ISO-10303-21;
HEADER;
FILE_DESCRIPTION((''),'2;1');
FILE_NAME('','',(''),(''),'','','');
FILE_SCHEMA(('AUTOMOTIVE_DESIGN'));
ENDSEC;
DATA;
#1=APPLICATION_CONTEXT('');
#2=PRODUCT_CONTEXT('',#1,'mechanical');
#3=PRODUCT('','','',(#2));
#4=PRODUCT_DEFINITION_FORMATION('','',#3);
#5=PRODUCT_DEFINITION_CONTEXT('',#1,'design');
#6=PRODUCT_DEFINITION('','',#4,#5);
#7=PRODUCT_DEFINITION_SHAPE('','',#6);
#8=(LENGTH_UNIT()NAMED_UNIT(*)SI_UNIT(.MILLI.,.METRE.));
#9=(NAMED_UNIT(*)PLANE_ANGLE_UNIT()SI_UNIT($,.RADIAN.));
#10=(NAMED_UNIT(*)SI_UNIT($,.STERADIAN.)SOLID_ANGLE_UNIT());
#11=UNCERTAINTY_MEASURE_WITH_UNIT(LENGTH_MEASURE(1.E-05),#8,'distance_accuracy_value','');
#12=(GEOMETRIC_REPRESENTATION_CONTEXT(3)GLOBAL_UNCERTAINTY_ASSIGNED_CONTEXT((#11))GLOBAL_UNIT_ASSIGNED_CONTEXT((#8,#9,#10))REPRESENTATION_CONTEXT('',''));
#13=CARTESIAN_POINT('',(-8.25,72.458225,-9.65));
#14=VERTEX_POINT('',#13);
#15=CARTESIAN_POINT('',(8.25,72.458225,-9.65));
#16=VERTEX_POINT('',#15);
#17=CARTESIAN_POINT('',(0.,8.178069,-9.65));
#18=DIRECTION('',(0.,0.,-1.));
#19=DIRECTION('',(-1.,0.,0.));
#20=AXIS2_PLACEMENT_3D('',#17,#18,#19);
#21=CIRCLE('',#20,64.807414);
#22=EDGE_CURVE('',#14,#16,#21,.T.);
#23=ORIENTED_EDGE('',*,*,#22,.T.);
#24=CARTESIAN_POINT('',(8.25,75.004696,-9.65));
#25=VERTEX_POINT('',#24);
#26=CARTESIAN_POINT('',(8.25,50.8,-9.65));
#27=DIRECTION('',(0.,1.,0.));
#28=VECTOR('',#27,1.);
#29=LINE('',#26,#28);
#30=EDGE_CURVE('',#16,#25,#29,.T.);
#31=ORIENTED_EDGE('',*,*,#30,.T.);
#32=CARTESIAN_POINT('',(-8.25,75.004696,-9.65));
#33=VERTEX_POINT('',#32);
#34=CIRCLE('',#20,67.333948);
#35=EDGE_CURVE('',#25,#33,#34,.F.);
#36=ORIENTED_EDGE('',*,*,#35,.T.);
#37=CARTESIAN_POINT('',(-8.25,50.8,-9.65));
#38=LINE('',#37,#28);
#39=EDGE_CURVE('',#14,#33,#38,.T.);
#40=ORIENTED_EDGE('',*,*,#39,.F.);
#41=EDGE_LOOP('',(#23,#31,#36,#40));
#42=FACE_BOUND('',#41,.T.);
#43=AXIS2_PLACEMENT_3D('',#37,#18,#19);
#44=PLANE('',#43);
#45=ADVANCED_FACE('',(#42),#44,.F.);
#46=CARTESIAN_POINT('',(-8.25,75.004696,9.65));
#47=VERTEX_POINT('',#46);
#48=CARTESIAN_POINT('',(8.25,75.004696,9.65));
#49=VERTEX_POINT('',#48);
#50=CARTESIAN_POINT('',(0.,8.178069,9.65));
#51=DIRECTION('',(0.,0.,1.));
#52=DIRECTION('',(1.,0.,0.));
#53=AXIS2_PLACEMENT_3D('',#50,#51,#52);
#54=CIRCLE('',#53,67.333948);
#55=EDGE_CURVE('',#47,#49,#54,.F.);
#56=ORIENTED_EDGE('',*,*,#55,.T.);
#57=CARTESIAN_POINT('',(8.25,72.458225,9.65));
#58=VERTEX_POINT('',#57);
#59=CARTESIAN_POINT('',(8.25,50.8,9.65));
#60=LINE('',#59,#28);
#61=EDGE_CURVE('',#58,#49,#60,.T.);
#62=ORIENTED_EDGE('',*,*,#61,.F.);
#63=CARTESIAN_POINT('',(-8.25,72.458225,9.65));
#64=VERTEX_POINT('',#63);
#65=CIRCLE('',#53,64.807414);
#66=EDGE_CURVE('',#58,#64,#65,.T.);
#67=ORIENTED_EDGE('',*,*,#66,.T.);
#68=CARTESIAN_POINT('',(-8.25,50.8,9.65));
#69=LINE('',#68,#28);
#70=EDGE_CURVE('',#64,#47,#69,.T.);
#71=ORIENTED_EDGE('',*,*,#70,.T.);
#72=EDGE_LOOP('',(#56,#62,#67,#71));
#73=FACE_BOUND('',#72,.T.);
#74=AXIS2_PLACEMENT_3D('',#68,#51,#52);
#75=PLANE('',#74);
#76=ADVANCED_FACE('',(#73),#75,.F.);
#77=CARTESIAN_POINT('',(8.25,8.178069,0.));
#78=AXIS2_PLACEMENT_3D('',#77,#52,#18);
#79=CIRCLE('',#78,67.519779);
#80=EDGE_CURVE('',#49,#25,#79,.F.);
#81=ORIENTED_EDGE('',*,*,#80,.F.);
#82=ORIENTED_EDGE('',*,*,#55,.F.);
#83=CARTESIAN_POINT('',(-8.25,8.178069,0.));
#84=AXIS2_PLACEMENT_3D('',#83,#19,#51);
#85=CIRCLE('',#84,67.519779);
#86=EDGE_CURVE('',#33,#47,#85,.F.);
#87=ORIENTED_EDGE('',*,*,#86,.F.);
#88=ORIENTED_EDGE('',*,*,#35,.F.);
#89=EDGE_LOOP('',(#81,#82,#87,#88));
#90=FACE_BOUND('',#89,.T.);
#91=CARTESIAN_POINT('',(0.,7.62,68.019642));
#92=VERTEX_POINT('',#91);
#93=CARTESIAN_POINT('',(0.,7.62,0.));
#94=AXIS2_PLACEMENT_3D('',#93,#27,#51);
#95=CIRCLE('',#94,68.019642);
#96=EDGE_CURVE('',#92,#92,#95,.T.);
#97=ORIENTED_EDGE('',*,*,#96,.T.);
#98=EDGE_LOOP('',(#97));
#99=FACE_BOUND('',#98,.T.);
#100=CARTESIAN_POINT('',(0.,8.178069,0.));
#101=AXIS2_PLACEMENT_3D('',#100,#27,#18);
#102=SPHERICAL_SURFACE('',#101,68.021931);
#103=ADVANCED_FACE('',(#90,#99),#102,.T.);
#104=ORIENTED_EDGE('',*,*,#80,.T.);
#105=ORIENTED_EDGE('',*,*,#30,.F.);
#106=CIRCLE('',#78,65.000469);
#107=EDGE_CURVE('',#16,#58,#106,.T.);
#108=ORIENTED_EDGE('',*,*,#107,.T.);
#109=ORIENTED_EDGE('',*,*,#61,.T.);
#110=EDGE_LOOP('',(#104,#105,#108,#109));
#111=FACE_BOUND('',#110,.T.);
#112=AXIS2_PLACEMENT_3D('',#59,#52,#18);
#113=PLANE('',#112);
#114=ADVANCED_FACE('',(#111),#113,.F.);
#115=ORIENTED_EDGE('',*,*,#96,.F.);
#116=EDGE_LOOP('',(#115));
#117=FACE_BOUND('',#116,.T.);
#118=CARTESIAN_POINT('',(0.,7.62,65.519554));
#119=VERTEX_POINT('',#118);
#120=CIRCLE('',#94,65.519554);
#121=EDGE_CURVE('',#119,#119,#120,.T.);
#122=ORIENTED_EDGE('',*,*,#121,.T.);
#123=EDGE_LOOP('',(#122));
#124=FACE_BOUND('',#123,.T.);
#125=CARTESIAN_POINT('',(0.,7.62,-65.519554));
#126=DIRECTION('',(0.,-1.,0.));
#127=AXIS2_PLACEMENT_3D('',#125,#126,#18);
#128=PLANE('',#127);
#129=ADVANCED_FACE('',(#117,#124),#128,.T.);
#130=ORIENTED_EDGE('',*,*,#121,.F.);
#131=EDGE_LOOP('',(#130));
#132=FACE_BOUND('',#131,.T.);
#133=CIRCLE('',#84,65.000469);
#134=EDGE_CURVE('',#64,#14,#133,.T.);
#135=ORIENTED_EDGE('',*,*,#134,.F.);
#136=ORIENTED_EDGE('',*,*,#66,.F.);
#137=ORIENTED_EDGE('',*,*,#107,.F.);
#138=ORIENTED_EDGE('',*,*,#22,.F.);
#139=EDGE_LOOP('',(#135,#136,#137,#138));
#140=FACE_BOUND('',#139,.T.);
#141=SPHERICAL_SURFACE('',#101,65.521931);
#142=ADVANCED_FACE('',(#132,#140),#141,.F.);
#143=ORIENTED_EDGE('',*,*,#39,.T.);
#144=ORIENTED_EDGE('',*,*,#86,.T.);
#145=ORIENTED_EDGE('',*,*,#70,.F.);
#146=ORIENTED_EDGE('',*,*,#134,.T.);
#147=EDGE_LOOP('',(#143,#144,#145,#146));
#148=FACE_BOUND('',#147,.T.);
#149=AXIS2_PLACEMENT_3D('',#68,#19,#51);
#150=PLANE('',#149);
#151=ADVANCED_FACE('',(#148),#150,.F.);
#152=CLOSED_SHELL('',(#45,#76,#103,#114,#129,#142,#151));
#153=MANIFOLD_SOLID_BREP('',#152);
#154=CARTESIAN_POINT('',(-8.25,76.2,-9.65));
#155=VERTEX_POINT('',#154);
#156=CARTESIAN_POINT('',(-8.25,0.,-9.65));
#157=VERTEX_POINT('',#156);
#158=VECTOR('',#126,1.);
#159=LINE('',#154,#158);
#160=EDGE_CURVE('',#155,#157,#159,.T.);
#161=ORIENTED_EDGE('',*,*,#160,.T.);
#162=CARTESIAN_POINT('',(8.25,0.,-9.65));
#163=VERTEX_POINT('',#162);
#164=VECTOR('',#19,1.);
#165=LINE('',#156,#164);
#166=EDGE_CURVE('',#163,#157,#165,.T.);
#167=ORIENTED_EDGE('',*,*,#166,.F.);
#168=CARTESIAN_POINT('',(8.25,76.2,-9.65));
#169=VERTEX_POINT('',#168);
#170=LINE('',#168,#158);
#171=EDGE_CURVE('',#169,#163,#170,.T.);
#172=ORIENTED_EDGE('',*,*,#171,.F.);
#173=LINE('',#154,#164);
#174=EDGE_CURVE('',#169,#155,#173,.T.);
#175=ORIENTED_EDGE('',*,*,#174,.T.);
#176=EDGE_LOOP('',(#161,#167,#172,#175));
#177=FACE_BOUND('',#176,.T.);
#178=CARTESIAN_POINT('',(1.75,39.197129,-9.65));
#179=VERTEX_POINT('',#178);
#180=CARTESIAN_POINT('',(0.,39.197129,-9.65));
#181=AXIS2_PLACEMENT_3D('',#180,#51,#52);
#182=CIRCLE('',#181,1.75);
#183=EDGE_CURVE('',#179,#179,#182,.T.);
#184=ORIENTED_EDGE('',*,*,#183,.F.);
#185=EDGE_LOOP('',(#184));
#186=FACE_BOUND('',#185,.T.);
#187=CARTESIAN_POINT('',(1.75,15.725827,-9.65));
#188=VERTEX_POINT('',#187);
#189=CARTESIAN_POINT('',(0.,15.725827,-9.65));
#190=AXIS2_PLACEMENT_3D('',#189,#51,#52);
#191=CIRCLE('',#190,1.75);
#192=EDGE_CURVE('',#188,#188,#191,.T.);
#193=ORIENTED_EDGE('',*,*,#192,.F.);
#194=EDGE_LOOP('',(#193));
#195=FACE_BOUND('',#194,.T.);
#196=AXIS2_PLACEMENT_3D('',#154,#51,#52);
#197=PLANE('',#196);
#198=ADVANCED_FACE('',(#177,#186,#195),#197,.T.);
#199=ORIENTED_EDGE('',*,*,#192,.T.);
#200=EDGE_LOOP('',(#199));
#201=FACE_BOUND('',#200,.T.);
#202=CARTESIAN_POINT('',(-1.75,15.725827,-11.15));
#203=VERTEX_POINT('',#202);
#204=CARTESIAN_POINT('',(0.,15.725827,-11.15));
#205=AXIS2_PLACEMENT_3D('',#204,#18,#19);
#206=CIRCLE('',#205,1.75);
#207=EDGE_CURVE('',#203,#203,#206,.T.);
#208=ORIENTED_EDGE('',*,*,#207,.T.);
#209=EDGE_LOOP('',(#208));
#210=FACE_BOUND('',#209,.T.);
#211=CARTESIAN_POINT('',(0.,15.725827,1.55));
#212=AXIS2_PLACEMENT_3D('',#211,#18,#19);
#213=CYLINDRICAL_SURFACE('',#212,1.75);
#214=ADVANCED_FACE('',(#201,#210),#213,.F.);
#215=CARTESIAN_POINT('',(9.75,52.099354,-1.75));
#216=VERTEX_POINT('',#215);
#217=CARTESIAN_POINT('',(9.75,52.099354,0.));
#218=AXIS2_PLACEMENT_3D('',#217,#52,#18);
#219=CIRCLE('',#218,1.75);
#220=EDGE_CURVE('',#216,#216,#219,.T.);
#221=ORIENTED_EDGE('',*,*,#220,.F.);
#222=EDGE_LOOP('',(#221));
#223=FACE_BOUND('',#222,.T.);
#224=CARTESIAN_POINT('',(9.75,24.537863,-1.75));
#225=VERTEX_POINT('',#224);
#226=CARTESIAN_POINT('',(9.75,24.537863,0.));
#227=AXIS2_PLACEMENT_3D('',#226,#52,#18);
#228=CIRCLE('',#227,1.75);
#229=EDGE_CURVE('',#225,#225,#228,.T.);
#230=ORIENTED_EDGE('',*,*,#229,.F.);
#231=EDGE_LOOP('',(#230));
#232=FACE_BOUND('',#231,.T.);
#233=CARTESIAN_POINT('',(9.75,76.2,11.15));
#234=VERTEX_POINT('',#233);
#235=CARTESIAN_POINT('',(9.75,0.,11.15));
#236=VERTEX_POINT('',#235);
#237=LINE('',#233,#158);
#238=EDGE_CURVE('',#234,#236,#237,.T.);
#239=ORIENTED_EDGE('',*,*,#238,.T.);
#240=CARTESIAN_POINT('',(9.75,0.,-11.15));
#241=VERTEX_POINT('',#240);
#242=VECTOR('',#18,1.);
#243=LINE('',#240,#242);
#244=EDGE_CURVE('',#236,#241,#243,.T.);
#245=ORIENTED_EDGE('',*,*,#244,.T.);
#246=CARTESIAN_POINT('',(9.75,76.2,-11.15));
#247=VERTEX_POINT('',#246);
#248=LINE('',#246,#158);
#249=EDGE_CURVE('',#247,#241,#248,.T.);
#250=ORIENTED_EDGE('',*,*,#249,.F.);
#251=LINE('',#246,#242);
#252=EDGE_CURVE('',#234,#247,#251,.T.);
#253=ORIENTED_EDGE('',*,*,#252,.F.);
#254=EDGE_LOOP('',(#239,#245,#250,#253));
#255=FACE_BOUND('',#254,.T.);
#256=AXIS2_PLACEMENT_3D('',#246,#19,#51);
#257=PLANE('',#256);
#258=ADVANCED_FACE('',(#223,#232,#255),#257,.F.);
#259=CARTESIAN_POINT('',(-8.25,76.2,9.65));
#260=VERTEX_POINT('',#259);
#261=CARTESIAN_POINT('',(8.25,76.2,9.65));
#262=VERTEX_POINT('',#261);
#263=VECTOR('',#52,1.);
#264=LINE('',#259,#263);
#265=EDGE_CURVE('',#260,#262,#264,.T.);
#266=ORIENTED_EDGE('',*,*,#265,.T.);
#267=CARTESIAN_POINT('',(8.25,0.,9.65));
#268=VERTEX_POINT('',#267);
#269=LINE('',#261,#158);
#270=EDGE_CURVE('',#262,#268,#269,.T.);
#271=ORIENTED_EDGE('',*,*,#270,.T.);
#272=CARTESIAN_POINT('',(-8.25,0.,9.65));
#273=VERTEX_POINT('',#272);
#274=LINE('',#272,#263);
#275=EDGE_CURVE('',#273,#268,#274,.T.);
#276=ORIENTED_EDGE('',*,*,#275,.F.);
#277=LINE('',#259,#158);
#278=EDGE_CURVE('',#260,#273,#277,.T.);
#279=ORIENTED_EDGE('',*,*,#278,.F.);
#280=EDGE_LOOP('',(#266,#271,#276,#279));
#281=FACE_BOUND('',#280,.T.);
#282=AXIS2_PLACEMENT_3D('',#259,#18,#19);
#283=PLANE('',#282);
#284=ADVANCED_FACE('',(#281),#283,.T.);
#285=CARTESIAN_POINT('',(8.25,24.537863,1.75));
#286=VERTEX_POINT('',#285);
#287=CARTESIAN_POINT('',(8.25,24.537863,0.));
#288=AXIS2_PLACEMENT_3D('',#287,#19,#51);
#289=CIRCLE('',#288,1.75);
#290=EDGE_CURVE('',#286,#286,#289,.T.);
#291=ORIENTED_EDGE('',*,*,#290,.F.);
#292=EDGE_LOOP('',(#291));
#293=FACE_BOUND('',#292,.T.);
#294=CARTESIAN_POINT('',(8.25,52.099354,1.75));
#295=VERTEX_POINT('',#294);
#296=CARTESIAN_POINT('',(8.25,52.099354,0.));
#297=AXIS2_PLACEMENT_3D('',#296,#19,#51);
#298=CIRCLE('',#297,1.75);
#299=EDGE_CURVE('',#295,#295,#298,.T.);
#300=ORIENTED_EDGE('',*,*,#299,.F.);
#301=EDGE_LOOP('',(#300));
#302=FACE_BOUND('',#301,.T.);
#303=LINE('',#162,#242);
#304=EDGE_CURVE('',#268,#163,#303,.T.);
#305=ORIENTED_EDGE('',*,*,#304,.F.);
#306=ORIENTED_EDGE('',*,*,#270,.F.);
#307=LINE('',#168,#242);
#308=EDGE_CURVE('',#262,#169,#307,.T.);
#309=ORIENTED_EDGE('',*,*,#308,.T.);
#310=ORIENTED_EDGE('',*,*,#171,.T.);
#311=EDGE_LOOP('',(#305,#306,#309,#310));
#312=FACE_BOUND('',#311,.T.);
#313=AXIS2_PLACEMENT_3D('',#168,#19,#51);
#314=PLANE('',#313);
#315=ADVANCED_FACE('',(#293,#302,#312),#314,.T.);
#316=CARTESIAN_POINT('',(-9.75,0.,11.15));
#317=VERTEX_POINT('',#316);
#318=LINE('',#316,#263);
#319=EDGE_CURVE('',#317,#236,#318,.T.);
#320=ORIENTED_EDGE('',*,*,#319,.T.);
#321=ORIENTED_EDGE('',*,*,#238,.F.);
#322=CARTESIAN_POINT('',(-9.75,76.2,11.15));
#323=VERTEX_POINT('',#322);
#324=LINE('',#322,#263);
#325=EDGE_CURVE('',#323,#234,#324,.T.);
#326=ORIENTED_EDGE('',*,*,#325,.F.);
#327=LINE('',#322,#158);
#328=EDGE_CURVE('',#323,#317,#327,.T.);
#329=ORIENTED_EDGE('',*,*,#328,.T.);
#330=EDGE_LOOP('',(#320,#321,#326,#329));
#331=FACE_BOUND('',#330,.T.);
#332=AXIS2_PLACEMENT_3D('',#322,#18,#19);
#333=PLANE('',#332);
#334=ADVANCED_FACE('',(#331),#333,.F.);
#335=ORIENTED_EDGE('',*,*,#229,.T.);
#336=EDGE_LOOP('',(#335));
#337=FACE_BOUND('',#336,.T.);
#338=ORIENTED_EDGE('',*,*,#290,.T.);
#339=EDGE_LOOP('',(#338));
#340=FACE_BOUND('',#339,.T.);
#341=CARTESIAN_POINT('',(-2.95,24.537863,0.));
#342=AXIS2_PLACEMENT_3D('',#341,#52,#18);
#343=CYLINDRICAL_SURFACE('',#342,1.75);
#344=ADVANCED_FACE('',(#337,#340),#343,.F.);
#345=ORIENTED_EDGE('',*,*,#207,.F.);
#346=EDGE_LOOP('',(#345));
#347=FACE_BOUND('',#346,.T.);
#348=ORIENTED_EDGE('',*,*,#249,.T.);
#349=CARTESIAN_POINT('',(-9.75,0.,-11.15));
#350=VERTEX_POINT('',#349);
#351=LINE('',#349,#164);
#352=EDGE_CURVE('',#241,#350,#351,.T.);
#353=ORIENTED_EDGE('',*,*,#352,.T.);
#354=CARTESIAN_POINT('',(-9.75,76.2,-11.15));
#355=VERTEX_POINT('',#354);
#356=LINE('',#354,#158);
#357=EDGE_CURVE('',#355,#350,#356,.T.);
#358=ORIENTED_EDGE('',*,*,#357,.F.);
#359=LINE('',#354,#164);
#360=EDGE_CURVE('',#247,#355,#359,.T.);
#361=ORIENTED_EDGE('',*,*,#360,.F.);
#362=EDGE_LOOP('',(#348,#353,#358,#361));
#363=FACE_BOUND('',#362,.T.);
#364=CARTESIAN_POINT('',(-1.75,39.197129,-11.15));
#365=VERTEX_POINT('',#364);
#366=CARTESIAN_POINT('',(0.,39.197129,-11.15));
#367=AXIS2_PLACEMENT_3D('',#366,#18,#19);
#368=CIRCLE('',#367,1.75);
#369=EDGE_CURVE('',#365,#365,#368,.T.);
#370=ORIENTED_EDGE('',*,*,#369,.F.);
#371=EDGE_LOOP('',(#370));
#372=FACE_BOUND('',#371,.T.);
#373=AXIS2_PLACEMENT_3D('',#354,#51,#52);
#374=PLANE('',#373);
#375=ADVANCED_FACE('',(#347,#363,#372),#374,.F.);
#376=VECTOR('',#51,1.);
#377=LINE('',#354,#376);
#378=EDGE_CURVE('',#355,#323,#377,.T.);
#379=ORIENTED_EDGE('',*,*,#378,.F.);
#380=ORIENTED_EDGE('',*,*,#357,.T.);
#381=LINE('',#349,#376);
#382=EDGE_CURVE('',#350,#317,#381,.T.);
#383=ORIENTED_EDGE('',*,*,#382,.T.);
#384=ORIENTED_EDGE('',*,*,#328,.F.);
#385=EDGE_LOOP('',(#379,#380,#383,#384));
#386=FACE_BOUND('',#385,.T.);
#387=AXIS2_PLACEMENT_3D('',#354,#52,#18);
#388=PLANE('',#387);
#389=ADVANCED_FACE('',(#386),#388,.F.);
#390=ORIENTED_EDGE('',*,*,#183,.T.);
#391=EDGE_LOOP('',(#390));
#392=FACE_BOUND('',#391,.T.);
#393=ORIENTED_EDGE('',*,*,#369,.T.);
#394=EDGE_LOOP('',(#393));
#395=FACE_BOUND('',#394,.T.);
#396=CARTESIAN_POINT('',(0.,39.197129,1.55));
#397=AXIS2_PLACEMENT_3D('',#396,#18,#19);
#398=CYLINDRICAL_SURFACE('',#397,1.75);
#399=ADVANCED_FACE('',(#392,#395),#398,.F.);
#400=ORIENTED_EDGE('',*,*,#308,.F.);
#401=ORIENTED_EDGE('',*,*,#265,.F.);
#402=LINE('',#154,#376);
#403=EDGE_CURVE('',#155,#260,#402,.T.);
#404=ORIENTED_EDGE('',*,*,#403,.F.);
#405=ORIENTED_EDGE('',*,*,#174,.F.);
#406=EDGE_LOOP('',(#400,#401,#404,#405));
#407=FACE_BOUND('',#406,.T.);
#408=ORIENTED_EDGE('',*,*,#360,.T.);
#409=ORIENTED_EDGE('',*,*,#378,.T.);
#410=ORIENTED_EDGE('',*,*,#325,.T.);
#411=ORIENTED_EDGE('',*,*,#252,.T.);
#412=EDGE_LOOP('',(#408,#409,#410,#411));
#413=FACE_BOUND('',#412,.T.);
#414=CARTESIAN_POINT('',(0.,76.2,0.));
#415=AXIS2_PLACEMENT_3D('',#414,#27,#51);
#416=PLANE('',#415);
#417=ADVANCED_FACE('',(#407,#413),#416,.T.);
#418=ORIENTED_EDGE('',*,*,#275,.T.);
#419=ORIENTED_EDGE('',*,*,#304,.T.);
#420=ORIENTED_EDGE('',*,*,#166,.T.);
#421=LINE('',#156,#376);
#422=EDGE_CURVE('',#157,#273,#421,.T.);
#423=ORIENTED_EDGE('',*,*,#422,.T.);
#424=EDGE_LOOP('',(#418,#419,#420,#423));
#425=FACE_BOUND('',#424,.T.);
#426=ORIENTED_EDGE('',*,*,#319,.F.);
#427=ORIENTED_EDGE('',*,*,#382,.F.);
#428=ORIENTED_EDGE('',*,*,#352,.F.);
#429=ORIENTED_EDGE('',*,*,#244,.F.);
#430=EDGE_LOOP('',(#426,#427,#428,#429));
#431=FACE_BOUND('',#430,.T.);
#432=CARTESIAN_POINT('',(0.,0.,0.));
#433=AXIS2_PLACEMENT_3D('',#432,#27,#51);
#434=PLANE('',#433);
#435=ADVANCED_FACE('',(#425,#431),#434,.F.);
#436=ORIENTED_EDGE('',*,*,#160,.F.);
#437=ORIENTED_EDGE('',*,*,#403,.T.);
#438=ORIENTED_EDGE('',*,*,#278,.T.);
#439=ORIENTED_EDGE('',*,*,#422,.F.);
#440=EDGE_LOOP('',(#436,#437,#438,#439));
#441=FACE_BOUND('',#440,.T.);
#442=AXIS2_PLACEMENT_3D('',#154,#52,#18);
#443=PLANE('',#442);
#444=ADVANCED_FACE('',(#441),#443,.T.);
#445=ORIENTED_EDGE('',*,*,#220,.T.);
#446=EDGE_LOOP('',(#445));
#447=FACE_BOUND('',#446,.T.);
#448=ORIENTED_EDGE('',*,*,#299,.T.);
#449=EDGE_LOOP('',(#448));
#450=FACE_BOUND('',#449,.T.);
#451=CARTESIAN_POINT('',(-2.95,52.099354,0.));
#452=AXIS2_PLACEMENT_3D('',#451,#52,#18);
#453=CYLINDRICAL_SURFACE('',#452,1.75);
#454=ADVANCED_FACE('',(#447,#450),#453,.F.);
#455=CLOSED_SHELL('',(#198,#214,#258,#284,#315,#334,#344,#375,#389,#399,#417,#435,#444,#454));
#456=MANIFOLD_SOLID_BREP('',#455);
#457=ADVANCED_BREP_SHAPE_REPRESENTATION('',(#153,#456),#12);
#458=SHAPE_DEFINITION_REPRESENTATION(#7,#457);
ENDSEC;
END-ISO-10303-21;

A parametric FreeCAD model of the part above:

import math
import FreeCAD as App
import Part
import Sketcher
Q = App.Units.Quantity


def add_polygon(sketch, points):
    """Adds a closed chain of lines whose ends are joined by coincident constraints."""
    first, n = sketch.GeometryCount, len(points)
    for a, b in zip(points, points[1:] + points[:1]):
        sketch.addGeometry(Part.LineSegment(App.Vector(*a, 0), App.Vector(*b, 0)), False)
    for i in range(n):
        sketch.addConstraint(Sketcher.Constraint("Coincident", first + i, 2, first + (i + 1) % n, 1))

doc = App.newDocument("Part")
body = doc.addObject("PartDesign::Body", "Body")

sketch1 = body.newObject("Sketcher::SketchObject", "Sketch")
sketch1.AttachmentSupport = (doc.getObject("XZ_Plane"), [""])
sketch1.MapMode = "FlatFace"
add_polygon(sketch1, [(-10, -11), (-10, 11), (10, 11), (10, -11)])
add_polygon(sketch1, [(8, 10), (-8, 10), (-8, -10), (8, -10)])
sketch1.addConstraint([
    Sketcher.Constraint("Vertical", 0),
    Sketcher.Constraint("Horizontal", 1),
    Sketcher.Constraint("Vertical", 2),
    Sketcher.Constraint("Horizontal", 3),
    Sketcher.Constraint("Horizontal", 4),
    Sketcher.Constraint("Vertical", 5),
    Sketcher.Constraint("Horizontal", 6),
    Sketcher.Constraint("Vertical", 7),
    Sketcher.Constraint("Symmetric", 0, 2, 2, 2, -1, 1),
    Sketcher.Constraint("Symmetric", 4, 2, 6, 2, -1, 1),
    Sketcher.Constraint("DistanceX", 1, 1, 1, 2, Q("19.5 mm")),
    Sketcher.Constraint("DistanceX", 4, 2, 4, 1, Q("16.5 mm")),
    Sketcher.Constraint("DistanceY", 0, 1, 0, 2, Q("22.3 mm")),
    Sketcher.Constraint("DistanceY", 5, 2, 5, 1, Q("19.3 mm")),
])
pad1 = body.newObject("PartDesign::Pad", "Pad")
pad1.Profile = sketch1
pad1.Length = 76.2
pad1.Reversed = True

sketch2 = body.newObject("Sketcher::SketchObject", "Sketch001")
sketch2.AttachmentSupport = (doc.getObject("YZ_Plane"), [""])
sketch2.MapMode = "FlatFace"
sketch2.AttachmentOffset = App.Placement(App.Vector(0, 0, 9.75), App.Rotation())
sketch2.addGeometry([
    Part.Circle(App.Vector(24.5, 0, 0), App.Vector(0, 0, 1), 1.8),
    Part.Circle(App.Vector(52.1, 0, 0), App.Vector(0, 0, 1), 1.8),
], False)
sketch2.addConstraint([
    Sketcher.Constraint("Equal", 0, 1),
    Sketcher.Constraint("PointOnObject", 0, 3, -1),
    Sketcher.Constraint("PointOnObject", 1, 3, -1),
    Sketcher.Constraint("Diameter", 0, Q("3.5 mm")),
    Sketcher.Constraint("DistanceX", 0, 3, 1, 3, Q("27.561492 mm")),
    Sketcher.Constraint("DistanceX", -1, 1, 0, 3, Q("24.537863 mm")),
])
pocket1 = body.newObject("PartDesign::Pocket", "Pocket")
pocket1.Profile = sketch2
pocket1.Length = 12.7

sketch3 = body.newObject("Sketcher::SketchObject", "Sketch002")
sketch3.AttachmentSupport = (doc.getObject("XY_Plane"), [""])
sketch3.MapMode = "FlatFace"
sketch3.AttachmentOffset = App.Placement(App.Vector(0, 0, -11.15), App.Rotation())
sketch3.addGeometry([
    Part.Circle(App.Vector(0, 15.7, 0), App.Vector(0, 0, 1), 1.8),
    Part.Circle(App.Vector(0, 39.2, 0), App.Vector(0, 0, 1), 1.8),
], False)
sketch3.addConstraint([
    Sketcher.Constraint("Equal", 0, 1),
    Sketcher.Constraint("PointOnObject", 0, 3, -2),
    Sketcher.Constraint("PointOnObject", 1, 3, -2),
    Sketcher.Constraint("Diameter", 0, Q("3.5 mm")),
    Sketcher.Constraint("DistanceY", 0, 3, 1, 3, Q("23.471302 mm")),
    Sketcher.Constraint("DistanceY", -1, 1, 1, 3, Q("39.197129 mm")),
])
pocket2 = body.newObject("PartDesign::Pocket", "Pocket001")
pocket2.Profile = sketch3
pocket2.Length = 12.7
pocket2.Reversed = True
body2 = doc.addObject("PartDesign::Body", "Body001")

sketch4 = body2.newObject("Sketcher::SketchObject", "Sketch003")
sketch4.AttachmentSupport = (doc.getObject("YZ_Plane001"), [""])
sketch4.MapMode = "FlatFace"
sketch4.addGeometry([
    Part.LineSegment(App.Vector(7.6, -68, 0), App.Vector(7.6, -65.5, 0)),
    Part.ArcOfCircle(Part.Circle(App.Vector(8.2, 0, 0), App.Vector(0, 0, 1), 65.5), math.radians(-90), math.radians(0)),
    Part.LineSegment(App.Vector(73.7, 0, 0), App.Vector(76.2, 0, 0)),
    Part.ArcOfCircle(Part.Circle(App.Vector(8.2, 0, 0), App.Vector(0, 0, 1), 68), math.radians(-90), math.radians(0)),
], False)
sketch4.addConstraint([
    Sketcher.Constraint("Coincident", 0, 2, 1, 1),
    Sketcher.Constraint("Coincident", 1, 2, 2, 1),
    Sketcher.Constraint("Coincident", 2, 2, 3, 2),
    Sketcher.Constraint("Coincident", 3, 1, 0, 1),
    Sketcher.Constraint("Vertical", 0),
    Sketcher.Constraint("Horizontal", 2),
    Sketcher.Constraint("Coincident", 3, 3, 1, 3),
    Sketcher.Constraint("PointOnObject", 1, 3, -1),
    Sketcher.Constraint("PointOnObject", 1, 2, -1),
    Sketcher.Constraint("DistanceX", 2, 1, 2, 2, Q("2.5 mm")),
    Sketcher.Constraint("DistanceX", -1, 1, 1, 2, Q("73.7 mm")),
    Sketcher.Constraint("DistanceX", -1, 1, 0, 2, Q("7.62 mm")),
    Sketcher.Constraint("Radius", 1, Q("65.521931 mm")),
])
revolution = body2.newObject("PartDesign::Revolution", "Revolution")
revolution.Profile = sketch4
revolution.ReferenceAxis = (sketch4, ["H_Axis"])
revolution.Angle = 360

sketch5 = body2.newObject("Sketcher::SketchObject", "Sketch004")
sketch5.AttachmentSupport = (doc.getObject("XZ_Plane001"), [""])
sketch5.MapMode = "FlatFace"
sketch5.AttachmentOffset = App.Placement(App.Vector(0, 0, -76.2), App.Rotation())
add_polygon(sketch5, [(-8, -10), (-8, 10), (8, 10), (8, -10)])
sketch5.addConstraint([
    Sketcher.Constraint("Vertical", 0),
    Sketcher.Constraint("Horizontal", 1),
    Sketcher.Constraint("Vertical", 2),
    Sketcher.Constraint("Horizontal", 3),
    Sketcher.Constraint("Symmetric", 0, 2, 2, 2, -1, 1),
    Sketcher.Constraint("DistanceX", 1, 1, 1, 2, Q("16.5 mm")),
    Sketcher.Constraint("DistanceY", 0, 1, 0, 2, Q("19.3 mm")),
])
pocket3 = body2.newObject("PartDesign::Pocket", "Pocket002")
pocket3.Profile = sketch5
pocket3.Length = 25.4
pocket3.Reversed = True

doc.recompute()
